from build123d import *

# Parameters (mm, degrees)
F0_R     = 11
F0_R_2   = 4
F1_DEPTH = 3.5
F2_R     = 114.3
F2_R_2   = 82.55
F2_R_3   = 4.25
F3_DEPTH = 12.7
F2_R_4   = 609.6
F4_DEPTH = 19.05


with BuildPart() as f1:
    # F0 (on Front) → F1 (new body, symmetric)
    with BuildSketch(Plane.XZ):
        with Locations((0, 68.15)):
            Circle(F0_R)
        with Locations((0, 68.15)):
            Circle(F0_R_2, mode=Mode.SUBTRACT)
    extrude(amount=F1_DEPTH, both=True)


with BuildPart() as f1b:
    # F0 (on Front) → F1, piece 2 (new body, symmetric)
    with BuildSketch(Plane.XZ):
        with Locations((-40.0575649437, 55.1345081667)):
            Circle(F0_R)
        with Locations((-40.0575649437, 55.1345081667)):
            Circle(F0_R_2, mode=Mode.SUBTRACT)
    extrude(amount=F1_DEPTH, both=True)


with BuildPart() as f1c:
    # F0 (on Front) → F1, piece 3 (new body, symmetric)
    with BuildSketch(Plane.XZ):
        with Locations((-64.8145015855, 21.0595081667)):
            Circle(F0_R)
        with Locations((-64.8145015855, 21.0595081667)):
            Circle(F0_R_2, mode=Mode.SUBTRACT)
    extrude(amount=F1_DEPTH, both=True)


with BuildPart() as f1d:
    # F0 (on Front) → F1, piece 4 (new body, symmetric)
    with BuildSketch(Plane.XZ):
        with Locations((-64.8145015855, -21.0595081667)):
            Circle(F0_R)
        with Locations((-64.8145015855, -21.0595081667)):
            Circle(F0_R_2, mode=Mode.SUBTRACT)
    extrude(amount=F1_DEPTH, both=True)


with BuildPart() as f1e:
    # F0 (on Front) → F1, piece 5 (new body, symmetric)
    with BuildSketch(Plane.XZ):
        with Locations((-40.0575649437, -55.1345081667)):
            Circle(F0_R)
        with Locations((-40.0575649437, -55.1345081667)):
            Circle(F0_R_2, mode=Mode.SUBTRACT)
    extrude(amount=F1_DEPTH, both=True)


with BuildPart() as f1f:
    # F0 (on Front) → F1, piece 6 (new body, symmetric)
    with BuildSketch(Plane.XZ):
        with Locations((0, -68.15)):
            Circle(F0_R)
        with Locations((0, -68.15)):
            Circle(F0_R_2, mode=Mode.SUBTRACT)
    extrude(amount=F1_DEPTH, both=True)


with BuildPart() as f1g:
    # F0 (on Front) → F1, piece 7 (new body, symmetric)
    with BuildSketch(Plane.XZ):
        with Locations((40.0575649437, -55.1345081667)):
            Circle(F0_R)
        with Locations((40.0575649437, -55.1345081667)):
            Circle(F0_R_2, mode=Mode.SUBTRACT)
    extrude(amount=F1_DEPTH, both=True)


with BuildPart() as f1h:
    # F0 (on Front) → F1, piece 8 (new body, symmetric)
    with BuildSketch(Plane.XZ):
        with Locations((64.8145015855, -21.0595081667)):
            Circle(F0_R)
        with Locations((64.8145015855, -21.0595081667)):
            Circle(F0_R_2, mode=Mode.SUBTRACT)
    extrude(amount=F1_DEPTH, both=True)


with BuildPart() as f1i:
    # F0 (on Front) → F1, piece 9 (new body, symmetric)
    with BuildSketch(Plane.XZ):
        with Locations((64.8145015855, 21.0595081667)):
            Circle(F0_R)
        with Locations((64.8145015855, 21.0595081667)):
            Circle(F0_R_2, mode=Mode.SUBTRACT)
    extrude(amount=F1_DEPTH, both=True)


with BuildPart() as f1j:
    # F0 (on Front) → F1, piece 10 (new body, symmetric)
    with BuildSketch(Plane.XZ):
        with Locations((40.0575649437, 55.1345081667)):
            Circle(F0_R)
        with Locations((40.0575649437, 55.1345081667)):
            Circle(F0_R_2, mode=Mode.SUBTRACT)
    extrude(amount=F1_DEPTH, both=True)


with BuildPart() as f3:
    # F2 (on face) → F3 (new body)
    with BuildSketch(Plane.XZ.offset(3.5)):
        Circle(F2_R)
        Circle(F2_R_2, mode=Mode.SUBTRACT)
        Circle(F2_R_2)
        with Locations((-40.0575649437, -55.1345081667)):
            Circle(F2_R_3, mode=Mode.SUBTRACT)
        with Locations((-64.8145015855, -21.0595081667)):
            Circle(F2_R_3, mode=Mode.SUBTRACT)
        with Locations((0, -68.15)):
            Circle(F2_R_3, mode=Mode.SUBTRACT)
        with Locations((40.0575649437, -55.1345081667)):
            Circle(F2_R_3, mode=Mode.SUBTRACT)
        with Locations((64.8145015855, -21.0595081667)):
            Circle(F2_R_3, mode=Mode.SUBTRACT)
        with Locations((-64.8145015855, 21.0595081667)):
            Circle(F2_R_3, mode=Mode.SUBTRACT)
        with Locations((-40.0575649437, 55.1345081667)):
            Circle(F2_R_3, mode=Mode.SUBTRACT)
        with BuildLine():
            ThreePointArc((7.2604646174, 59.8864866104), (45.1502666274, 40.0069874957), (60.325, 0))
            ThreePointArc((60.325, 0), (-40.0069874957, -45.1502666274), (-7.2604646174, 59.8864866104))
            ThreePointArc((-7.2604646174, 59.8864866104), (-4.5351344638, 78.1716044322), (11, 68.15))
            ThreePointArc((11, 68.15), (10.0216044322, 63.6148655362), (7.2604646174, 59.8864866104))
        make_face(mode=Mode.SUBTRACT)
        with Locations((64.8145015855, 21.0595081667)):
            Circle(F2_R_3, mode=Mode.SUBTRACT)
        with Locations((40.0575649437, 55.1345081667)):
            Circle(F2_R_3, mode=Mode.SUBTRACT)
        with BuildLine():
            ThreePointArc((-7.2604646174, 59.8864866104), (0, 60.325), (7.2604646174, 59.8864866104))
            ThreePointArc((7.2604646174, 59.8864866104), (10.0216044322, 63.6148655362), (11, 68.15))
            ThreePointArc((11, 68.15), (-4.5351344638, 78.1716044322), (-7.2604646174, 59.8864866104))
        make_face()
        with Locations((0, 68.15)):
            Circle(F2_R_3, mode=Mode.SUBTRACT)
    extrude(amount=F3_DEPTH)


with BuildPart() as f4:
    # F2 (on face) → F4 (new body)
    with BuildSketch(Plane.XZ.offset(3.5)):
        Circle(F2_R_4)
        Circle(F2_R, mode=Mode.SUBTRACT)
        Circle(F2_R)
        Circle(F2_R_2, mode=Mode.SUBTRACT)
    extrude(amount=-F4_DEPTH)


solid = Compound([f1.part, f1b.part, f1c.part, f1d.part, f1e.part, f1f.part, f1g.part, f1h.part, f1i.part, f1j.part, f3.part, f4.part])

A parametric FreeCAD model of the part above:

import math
import FreeCAD as App
import Part
import Sketcher

V = App.Vector
Q = App.Units.Quantity

doc = App.newDocument("Part")
body = doc.addObject("PartDesign::Body", "Body")

sketch1 = body.newObject("Sketcher::SketchObject", "Sketch")
sketch1.AttachmentSupport = (doc.getObject("XZ_Plane"), [""])
sketch1.MapMode = "FlatFace"
sketch1.addGeometry([
    Part.Circle(V(0, 68.2, 0), V(0, 0, 1), 11),
    Part.Circle(V(0, 68.2, 0), V(0, 0, 1), 4),
], False)
sketch1.addConstraint([
    Sketcher.Constraint("Coincident", 1, 3, 0, 3),
    Sketcher.Constraint("PointOnObject", 0, 3, -2),
    Sketcher.Constraint("Diameter", 0, Q("22 mm")),
    Sketcher.Constraint("Diameter", 1, Q("8 mm")),
    Sketcher.Constraint("DistanceY", -1, 1, 0, 3, Q("68.15 mm")),
])
pad1 = body.newObject("PartDesign::Pad", "Pad")
pad1.Profile = sketch1
pad1.Length = 7
pad1.Midplane = True
body2 = doc.addObject("PartDesign::Body", "Body001")

sketch2 = body2.newObject("Sketcher::SketchObject", "Sketch001")
sketch2.AttachmentSupport = (doc.getObject("XZ_Plane001"), [""])
sketch2.MapMode = "FlatFace"
sketch2.addGeometry([
    Part.Circle(V(-40.1, 55.1, 0), V(0, 0, 1), 11),
    Part.Circle(V(-40.1, 55.1, 0), V(0, 0, 1), 4),
], False)
sketch2.addConstraint([
    Sketcher.Constraint("Coincident", 1, 3, 0, 3),
    Sketcher.Constraint("Diameter", 0, Q("22 mm")),
    Sketcher.Constraint("Diameter", 1, Q("8 mm")),
    Sketcher.Constraint("DistanceY", -1, 1, 0, 3, Q("55.134508 mm")),
    Sketcher.Constraint("DistanceX", 0, 3, -1, 1, Q("40.057565 mm")),
])
pad2 = body2.newObject("PartDesign::Pad", "Pad001")
pad2.Profile = sketch2
pad2.Length = 7
pad2.Midplane = True
body3 = doc.addObject("PartDesign::Body", "Body002")

sketch3 = body3.newObject("Sketcher::SketchObject", "Sketch002")
sketch3.AttachmentSupport = (doc.getObject("XZ_Plane002"), [""])
sketch3.MapMode = "FlatFace"
sketch3.addGeometry([
    Part.Circle(V(-64.8, 21.1, 0), V(0, 0, 1), 11),
    Part.Circle(V(-64.8, 21.1, 0), V(0, 0, 1), 4),
], False)
sketch3.addConstraint([
    Sketcher.Constraint("Coincident", 1, 3, 0, 3),
    Sketcher.Constraint("Diameter", 0, Q("22 mm")),
    Sketcher.Constraint("Diameter", 1, Q("8 mm")),
    Sketcher.Constraint("DistanceX", 0, 3, -1, 1, Q("64.814502 mm")),
    Sketcher.Constraint("DistanceY", -1, 1, 0, 3, Q("21.059508 mm")),
])
pad3 = body3.newObject("PartDesign::Pad", "Pad002")
pad3.Profile = sketch3
pad3.Length = 7
pad3.Midplane = True
body4 = doc.addObject("PartDesign::Body", "Body003")

sketch4 = body4.newObject("Sketcher::SketchObject", "Sketch003")
sketch4.AttachmentSupport = (doc.getObject("XZ_Plane003"), [""])
sketch4.MapMode = "FlatFace"
sketch4.addGeometry([
    Part.Circle(V(-64.8, -21.1, 0), V(0, 0, 1), 11),
    Part.Circle(V(-64.8, -21.1, 0), V(0, 0, 1), 4),
], False)
sketch4.addConstraint([
    Sketcher.Constraint("Coincident", 1, 3, 0, 3),
    Sketcher.Constraint("Diameter", 0, Q("22 mm")),
    Sketcher.Constraint("Diameter", 1, Q("8 mm")),
    Sketcher.Constraint("DistanceX", 0, 3, -1, 1, Q("64.814502 mm")),
    Sketcher.Constraint("DistanceY", 0, 3, -1, 1, Q("21.059508 mm")),
])
pad4 = body4.newObject("PartDesign::Pad", "Pad003")
pad4.Profile = sketch4
pad4.Length = 7
pad4.Midplane = True
body5 = doc.addObject("PartDesign::Body", "Body004")

sketch5 = body5.newObject("Sketcher::SketchObject", "Sketch004")
sketch5.AttachmentSupport = (doc.getObject("XZ_Plane004"), [""])
sketch5.MapMode = "FlatFace"
sketch5.addGeometry([
    Part.Circle(V(-40.1, -55.1, 0), V(0, 0, 1), 11),
    Part.Circle(V(-40.1, -55.1, 0), V(0, 0, 1), 4),
], False)
sketch5.addConstraint([
    Sketcher.Constraint("Coincident", 1, 3, 0, 3),
    Sketcher.Constraint("Diameter", 0, Q("22 mm")),
    Sketcher.Constraint("Diameter", 1, Q("8 mm")),
    Sketcher.Constraint("DistanceY", 0, 3, -1, 1, Q("55.134508 mm")),
    Sketcher.Constraint("DistanceX", 0, 3, -1, 1, Q("40.057565 mm")),
])
pad5 = body5.newObject("PartDesign::Pad", "Pad004")
pad5.Profile = sketch5
pad5.Length = 7
pad5.Midplane = True
body6 = doc.addObject("PartDesign::Body", "Body005")

sketch6 = body6.newObject("Sketcher::SketchObject", "Sketch005")
sketch6.AttachmentSupport = (doc.getObject("XZ_Plane005"), [""])
sketch6.MapMode = "FlatFace"
sketch6.addGeometry([
    Part.Circle(V(0, -68.2, 0), V(0, 0, 1), 11),
    Part.Circle(V(0, -68.2, 0), V(0, 0, 1), 4),
], False)
sketch6.addConstraint([
    Sketcher.Constraint("Coincident", 1, 3, 0, 3),
    Sketcher.Constraint("PointOnObject", 0, 3, -2),
    Sketcher.Constraint("Diameter", 0, Q("22 mm")),
    Sketcher.Constraint("Diameter", 1, Q("8 mm")),
    Sketcher.Constraint("DistanceY", 0, 3, -1, 1, Q("68.15 mm")),
])
pad6 = body6.newObject("PartDesign::Pad", "Pad005")
pad6.Profile = sketch6
pad6.Length = 7
pad6.Midplane = True
body7 = doc.addObject("PartDesign::Body", "Body006")

sketch7 = body7.newObject("Sketcher::SketchObject", "Sketch006")
sketch7.AttachmentSupport = (doc.getObject("XZ_Plane006"), [""])
sketch7.MapMode = "FlatFace"
sketch7.addGeometry([
    Part.Circle(V(40.1, -55.1, 0), V(0, 0, 1), 11),
    Part.Circle(V(40.1, -55.1, 0), V(0, 0, 1), 4),
], False)
sketch7.addConstraint([
    Sketcher.Constraint("Coincident", 1, 3, 0, 3),
    Sketcher.Constraint("Diameter", 0, Q("22 mm")),
    Sketcher.Constraint("Diameter", 1, Q("8 mm")),
    Sketcher.Constraint("DistanceY", 0, 3, -1, 1, Q("55.134508 mm")),
    Sketcher.Constraint("DistanceX", -1, 1, 0, 3, Q("40.057565 mm")),
])
pad7 = body7.newObject("PartDesign::Pad", "Pad006")
pad7.Profile = sketch7
pad7.Length = 7
pad7.Midplane = True
body8 = doc.addObject("PartDesign::Body", "Body007")

sketch8 = body8.newObject("Sketcher::SketchObject", "Sketch007")
sketch8.AttachmentSupport = (doc.getObject("XZ_Plane007"), [""])
sketch8.MapMode = "FlatFace"
sketch8.addGeometry([
    Part.Circle(V(64.8, -21.1, 0), V(0, 0, 1), 11),
    Part.Circle(V(64.8, -21.1, 0), V(0, 0, 1), 4),
], False)
sketch8.addConstraint([
    Sketcher.Constraint("Coincident", 1, 3, 0, 3),
    Sketcher.Constraint("Diameter", 0, Q("22 mm")),
    Sketcher.Constraint("Diameter", 1, Q("8 mm")),
    Sketcher.Constraint("DistanceX", -1, 1, 0, 3, Q("64.814502 mm")),
    Sketcher.Constraint("DistanceY", 0, 3, -1, 1, Q("21.059508 mm")),
])
pad8 = body8.newObject("PartDesign::Pad", "Pad007")
pad8.Profile = sketch8
pad8.Length = 7
pad8.Midplane = True
body9 = doc.addObject("PartDesign::Body", "Body008")

sketch9 = body9.newObject("Sketcher::SketchObject", "Sketch008")
sketch9.AttachmentSupport = (doc.getObject("XZ_Plane008"), [""])
sketch9.MapMode = "FlatFace"
sketch9.addGeometry([
    Part.Circle(V(64.8, 21.1, 0), V(0, 0, 1), 11),
    Part.Circle(V(64.8, 21.1, 0), V(0, 0, 1), 4),
], False)
sketch9.addConstraint([
    Sketcher.Constraint("Coincident", 1, 3, 0, 3),
    Sketcher.Constraint("Diameter", 0, Q("22 mm")),
    Sketcher.Constraint("Diameter", 1, Q("8 mm")),
    Sketcher.Constraint("DistanceX", -1, 1, 0, 3, Q("64.814502 mm")),
    Sketcher.Constraint("DistanceY", -1, 1, 0, 3, Q("21.059508 mm")),
])
pad9 = body9.newObject("PartDesign::Pad", "Pad008")
pad9.Profile = sketch9
pad9.Length = 7
pad9.Midplane = True
body10 = doc.addObject("PartDesign::Body", "Body009")

sketch10 = body10.newObject("Sketcher::SketchObject", "Sketch009")
sketch10.AttachmentSupport = (doc.getObject("XZ_Plane009"), [""])
sketch10.MapMode = "FlatFace"
sketch10.addGeometry([
    Part.Circle(V(40.1, 55.1, 0), V(0, 0, 1), 11),
    Part.Circle(V(40.1, 55.1, 0), V(0, 0, 1), 4),
], False)
sketch10.addConstraint([
    Sketcher.Constraint("Coincident", 1, 3, 0, 3),
    Sketcher.Constraint("Diameter", 0, Q("22 mm")),
    Sketcher.Constraint("Diameter", 1, Q("8 mm")),
    Sketcher.Constraint("DistanceY", -1, 1, 0, 3, Q("55.134508 mm")),
    Sketcher.Constraint("DistanceX", -1, 1, 0, 3, Q("40.057565 mm")),
])
pad10 = body10.newObject("PartDesign::Pad", "Pad009")
pad10.Profile = sketch10
pad10.Length = 7
pad10.Midplane = True
body11 = doc.addObject("PartDesign::Body", "Body010")

sketch11 = body11.newObject("Sketcher::SketchObject", "Sketch010")
sketch11.AttachmentSupport = (doc.getObject("XZ_Plane010"), [""])
sketch11.MapMode = "FlatFace"
sketch11.AttachmentOffset = App.Placement(V(0, 0, 3.5), App.Rotation())
sketch11.addGeometry([
    Part.Circle(V(0, 0, 0), V(0, 0, 1), 114.3),
    Part.Circle(V(-40.1, -55.1, 0), V(0, 0, 1), 4.2),
    Part.Circle(V(-64.8, -21.1, 0), V(0, 0, 1), 4.2),
    Part.ArcOfCircle(Part.Circle(V(0, 0, 0), V(0, 0, 1), 60.3), math.radians(97), math.radians(360)),
    Part.ArcOfCircle(Part.Circle(V(0, 0, 0), V(0, 0, 1), 60.3), math.radians(83.09), math.radians(96.91)),
    Part.ArcOfCircle(Part.Circle(V(0, 0, 0), V(0, 0, 1), 60.3), math.radians(0), math.radians(83)),
    Part.Circle(V(0, -68.2, 0), V(0, 0, 1), 4.2),
    Part.Circle(V(40.1, -55.1, 0), V(0, 0, 1), 4.2),
    Part.Circle(V(64.8, -21.1, 0), V(0, 0, 1), 4.2),
    Part.Circle(V(-64.8, 21.1, 0), V(0, 0, 1), 4.2),
    Part.Circle(V(-40.1, 55.1, 0), V(0, 0, 1), 4.2),
    Part.Circle(V(64.8, 21.1, 0), V(0, 0, 1), 4.2),
    Part.Circle(V(0, 68.2, 0), V(0, 0, 1), 4.2),
    Part.Circle(V(40.1, 55.1, 0), V(0, 0, 1), 4.2),
], False)
sketch11.addConstraint([
    Sketcher.Constraint("Tangent", 3, 1, 4, 2),
    Sketcher.Constraint("Tangent", 4, 1, 5, 2),
    Sketcher.Constraint("Tangent", 5, 1, 3, 2),
    Sketcher.Constraint("Coincident", 0, 3, -1, 1),
    Sketcher.Constraint("Coincident", 3, 3, -1, 1),
    Sketcher.Constraint("Equal", 1, 2),
    Sketcher.Constraint("Equal", 2, 6),
    Sketcher.Constraint("Equal", 6, 7),
    Sketcher.Constraint("Equal", 7, 8),
    Sketcher.Constraint("Equal", 8, 9),
    Sketcher.Constraint("Equal", 9, 10),
    Sketcher.Constraint("Equal", 10, 11),
    Sketcher.Constraint("Equal", 11, 12),
    Sketcher.Constraint("Equal", 12, 13),
    Sketcher.Constraint("Symmetric", 8, 3, 9, 3, -1, 1),
    Sketcher.Constraint("Symmetric", 7, 3, 10, 3, -1, 1),
    Sketcher.Constraint("Symmetric", 2, 3, 11, 3, -1, 1),
    Sketcher.Constraint("Symmetric", 6, 3, 12, 3, -1, 1),
    Sketcher.Constraint("Symmetric", 1, 3, 13, 3, -1, 1),
    Sketcher.Constraint("Symmetric", 1, 3, 7, 3, -2),
    Sketcher.Constraint("Symmetric", 2, 3, 8, 3, -2),
    Sketcher.Constraint("PointOnObject", 6, 3, -2),
    Sketcher.Constraint("PointOnObject", 5, 1, -1),
    Sketcher.Constraint("Horizontal", 3, 1, 4, 1),
    Sketcher.Constraint("Diameter", 0, Q("9 in")),
    Sketcher.Constraint("Radius", 3, Q("2.375 in")),
    Sketcher.Constraint("Diameter", 1, Q("8.5 mm")),
    Sketcher.Constraint("DistanceX", 2, 3, -1, 1, Q("64.814502 mm")),
    Sketcher.Constraint("DistanceY", 6, 3, -1, 1, Q("68.15 mm")),
    Sketcher.Constraint("DistanceY", 1, 3, 2, 3, Q("34.075 mm")),
    Sketcher.Constraint("DistanceX", 10, 3, 3, 1, Q("32.7971 mm")),
    Sketcher.Constraint("DistanceY", 1, 3, -1, 1, Q("55.134508 mm")),
    Sketcher.Constraint("DistanceY", 10, 3, 3, 1, Q("4.751978 mm")),
])
pad11 = body11.newObject("PartDesign::Pad", "Pad010")
pad11.Profile = sketch11
pad11.Length = Q("0.5 in")
body12 = doc.addObject("PartDesign::Body", "Body011")

sketch12 = body12.newObject("Sketcher::SketchObject", "Sketch011")
sketch12.AttachmentSupport = (doc.getObject("XZ_Plane011"), [""])
sketch12.MapMode = "FlatFace"
sketch12.AttachmentOffset = App.Placement(V(0, 0, 3.5), App.Rotation())
sketch12.addGeometry([
    Part.Circle(V(0, 0, 0), V(0, 0, 1), 610),
    Part.Circle(V(0, 0, 0), V(0, 0, 1), 83),
], False)
sketch12.addConstraint([
    Sketcher.Constraint("Coincident", 0, 3, -1, 1),
    Sketcher.Constraint("Coincident", 1, 3, -1, 1),
    Sketcher.Constraint("Diameter", 0, Q("48 in")),
    Sketcher.Constraint("Diameter", 1, Q("6.5 in")),
])
pad12 = body12.newObject("PartDesign::Pad", "Pad011")
pad12.Profile = sketch12
pad12.Length = Q("0.75 in")
pad12.Reversed = True

doc.recompute()
